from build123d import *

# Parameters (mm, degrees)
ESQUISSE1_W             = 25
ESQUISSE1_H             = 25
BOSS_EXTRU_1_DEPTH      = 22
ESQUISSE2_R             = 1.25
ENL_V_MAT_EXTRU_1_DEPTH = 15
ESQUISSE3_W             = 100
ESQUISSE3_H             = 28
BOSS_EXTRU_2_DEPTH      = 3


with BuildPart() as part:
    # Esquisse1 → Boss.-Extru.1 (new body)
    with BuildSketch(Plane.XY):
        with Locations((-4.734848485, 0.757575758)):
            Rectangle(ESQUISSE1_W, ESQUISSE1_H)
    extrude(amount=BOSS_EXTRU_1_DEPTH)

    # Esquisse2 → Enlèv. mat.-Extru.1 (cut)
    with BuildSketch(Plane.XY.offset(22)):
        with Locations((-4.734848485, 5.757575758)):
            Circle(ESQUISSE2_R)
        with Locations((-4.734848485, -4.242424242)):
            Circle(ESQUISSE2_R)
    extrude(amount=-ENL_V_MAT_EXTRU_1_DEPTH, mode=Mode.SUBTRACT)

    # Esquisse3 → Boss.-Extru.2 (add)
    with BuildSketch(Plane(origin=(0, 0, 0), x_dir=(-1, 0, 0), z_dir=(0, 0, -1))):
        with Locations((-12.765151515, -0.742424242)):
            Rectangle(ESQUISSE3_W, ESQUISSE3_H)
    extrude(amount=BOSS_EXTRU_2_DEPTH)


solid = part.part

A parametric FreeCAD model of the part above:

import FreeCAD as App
import Part
import Sketcher

V = App.Vector


def add_polygon(sketch, points):
    """Adds a closed chain of lines whose ends are joined by coincident constraints."""
    first, n = sketch.GeometryCount, len(points)
    for a, b in zip(points, points[1:] + points[:1]):
        sketch.addGeometry(Part.LineSegment(App.Vector(*a, 0), App.Vector(*b, 0)), False)
    for i in range(n):
        sketch.addConstraint(Sketcher.Constraint("Coincident", first + i, 2, first + (i + 1) % n, 1))

doc = App.newDocument("Part")
body = doc.addObject("PartDesign::Body", "Body")

sketch1 = doc.addObject("Sketcher::SketchObject", "Sketch")
body.addObject(sketch1)
sketch1.AttachmentSupport = (doc.XY_Plane, [""])
sketch1.MapMode = "FlatFace"
add_polygon(sketch1, [(-17, 13), (-17, -12), (8, -12), (8, 13)])
sketch1.addConstraint(Sketcher.Constraint("Vertical", 0))
sketch1.addConstraint(Sketcher.Constraint("Horizontal", 1))
sketch1.addConstraint(Sketcher.Constraint("Vertical", 2))
sketch1.addConstraint(Sketcher.Constraint("Horizontal", 3))
sketch1.addConstraint(Sketcher.Constraint("Equal", 3, 0))
sketch1.addConstraint(Sketcher.Constraint("DistanceX", 1, 1, 1, 2, 25.0))
sketch1.addConstraint(Sketcher.Constraint("DistanceX", 0, 2, -1, 1, 17.234848))
sketch1.addConstraint(Sketcher.Constraint("DistanceY", 0, 2, -1, 1, 11.742424))
pad1 = doc.addObject("PartDesign::Pad", "Pad")
body.addObject(pad1)
pad1.Profile = sketch1
pad1.Length = 22

sketch2 = doc.addObject("Sketcher::SketchObject", "Sketch001")
body.addObject(sketch2)
sketch2.AttachmentSupport = (doc.XY_Plane, [""])
sketch2.MapMode = "FlatFace"
sketch2.AttachmentOffset = App.Placement(V(0, 0, 22), App.Rotation())
sketch2.addGeometry(Part.Circle(V(-4.7, 5.8, 0), V(0, 0, 1), 1.2), False)
sketch2.addGeometry(Part.Circle(V(-4.7, -4.2, 0), V(0, 0, 1), 1.2), False)
sketch2.addConstraint(Sketcher.Constraint("Equal", 0, 1))
sketch2.addConstraint(Sketcher.Constraint("Vertical", 0, 3, 1, 3))
sketch2.addConstraint(Sketcher.Constraint("Diameter", 0, 2.5))
sketch2.addConstraint(Sketcher.Constraint("DistanceY", 1, 3, 0, 3, 10.0))
sketch2.addConstraint(Sketcher.Constraint("DistanceX", 0, 3, -1, 1, 4.734848))
sketch2.addConstraint(Sketcher.Constraint("DistanceY", -1, 1, 0, 3, 5.757576))
pocket1 = doc.addObject("PartDesign::Pocket", "Pocket")
body.addObject(pocket1)
pocket1.Profile = sketch2
pocket1.Length = 15

sketch3 = doc.addObject("Sketcher::SketchObject", "Sketch002")
body.addObject(sketch3)
sketch3.AttachmentSupport = (doc.XY_Plane, [""])
sketch3.MapMode = "FlatFace"
add_polygon(sketch3, [(63, 13), (63, -15), (-37, -15), (-37, 13)])
sketch3.addConstraint(Sketcher.Constraint("Vertical", 0))
sketch3.addConstraint(Sketcher.Constraint("Horizontal", 1))
sketch3.addConstraint(Sketcher.Constraint("Vertical", 2))
sketch3.addConstraint(Sketcher.Constraint("Horizontal", 3))
sketch3.addConstraint(Sketcher.Constraint("DistanceX", 1, 2, 1, 1, 100.0))
sketch3.addConstraint(Sketcher.Constraint("DistanceY", 0, 2, 0, 1, 28.0))
sketch3.addConstraint(Sketcher.Constraint("DistanceX", -1, 1, 0, 2, 62.765152))
sketch3.addConstraint(Sketcher.Constraint("DistanceY", 0, 2, -1, 1, 14.742424))
pad2 = doc.addObject("PartDesign::Pad", "Pad001")
body.addObject(pad2)
pad2.Profile = sketch3
pad2.Length = 3
pad2.Reversed = True

doc.recompute()
